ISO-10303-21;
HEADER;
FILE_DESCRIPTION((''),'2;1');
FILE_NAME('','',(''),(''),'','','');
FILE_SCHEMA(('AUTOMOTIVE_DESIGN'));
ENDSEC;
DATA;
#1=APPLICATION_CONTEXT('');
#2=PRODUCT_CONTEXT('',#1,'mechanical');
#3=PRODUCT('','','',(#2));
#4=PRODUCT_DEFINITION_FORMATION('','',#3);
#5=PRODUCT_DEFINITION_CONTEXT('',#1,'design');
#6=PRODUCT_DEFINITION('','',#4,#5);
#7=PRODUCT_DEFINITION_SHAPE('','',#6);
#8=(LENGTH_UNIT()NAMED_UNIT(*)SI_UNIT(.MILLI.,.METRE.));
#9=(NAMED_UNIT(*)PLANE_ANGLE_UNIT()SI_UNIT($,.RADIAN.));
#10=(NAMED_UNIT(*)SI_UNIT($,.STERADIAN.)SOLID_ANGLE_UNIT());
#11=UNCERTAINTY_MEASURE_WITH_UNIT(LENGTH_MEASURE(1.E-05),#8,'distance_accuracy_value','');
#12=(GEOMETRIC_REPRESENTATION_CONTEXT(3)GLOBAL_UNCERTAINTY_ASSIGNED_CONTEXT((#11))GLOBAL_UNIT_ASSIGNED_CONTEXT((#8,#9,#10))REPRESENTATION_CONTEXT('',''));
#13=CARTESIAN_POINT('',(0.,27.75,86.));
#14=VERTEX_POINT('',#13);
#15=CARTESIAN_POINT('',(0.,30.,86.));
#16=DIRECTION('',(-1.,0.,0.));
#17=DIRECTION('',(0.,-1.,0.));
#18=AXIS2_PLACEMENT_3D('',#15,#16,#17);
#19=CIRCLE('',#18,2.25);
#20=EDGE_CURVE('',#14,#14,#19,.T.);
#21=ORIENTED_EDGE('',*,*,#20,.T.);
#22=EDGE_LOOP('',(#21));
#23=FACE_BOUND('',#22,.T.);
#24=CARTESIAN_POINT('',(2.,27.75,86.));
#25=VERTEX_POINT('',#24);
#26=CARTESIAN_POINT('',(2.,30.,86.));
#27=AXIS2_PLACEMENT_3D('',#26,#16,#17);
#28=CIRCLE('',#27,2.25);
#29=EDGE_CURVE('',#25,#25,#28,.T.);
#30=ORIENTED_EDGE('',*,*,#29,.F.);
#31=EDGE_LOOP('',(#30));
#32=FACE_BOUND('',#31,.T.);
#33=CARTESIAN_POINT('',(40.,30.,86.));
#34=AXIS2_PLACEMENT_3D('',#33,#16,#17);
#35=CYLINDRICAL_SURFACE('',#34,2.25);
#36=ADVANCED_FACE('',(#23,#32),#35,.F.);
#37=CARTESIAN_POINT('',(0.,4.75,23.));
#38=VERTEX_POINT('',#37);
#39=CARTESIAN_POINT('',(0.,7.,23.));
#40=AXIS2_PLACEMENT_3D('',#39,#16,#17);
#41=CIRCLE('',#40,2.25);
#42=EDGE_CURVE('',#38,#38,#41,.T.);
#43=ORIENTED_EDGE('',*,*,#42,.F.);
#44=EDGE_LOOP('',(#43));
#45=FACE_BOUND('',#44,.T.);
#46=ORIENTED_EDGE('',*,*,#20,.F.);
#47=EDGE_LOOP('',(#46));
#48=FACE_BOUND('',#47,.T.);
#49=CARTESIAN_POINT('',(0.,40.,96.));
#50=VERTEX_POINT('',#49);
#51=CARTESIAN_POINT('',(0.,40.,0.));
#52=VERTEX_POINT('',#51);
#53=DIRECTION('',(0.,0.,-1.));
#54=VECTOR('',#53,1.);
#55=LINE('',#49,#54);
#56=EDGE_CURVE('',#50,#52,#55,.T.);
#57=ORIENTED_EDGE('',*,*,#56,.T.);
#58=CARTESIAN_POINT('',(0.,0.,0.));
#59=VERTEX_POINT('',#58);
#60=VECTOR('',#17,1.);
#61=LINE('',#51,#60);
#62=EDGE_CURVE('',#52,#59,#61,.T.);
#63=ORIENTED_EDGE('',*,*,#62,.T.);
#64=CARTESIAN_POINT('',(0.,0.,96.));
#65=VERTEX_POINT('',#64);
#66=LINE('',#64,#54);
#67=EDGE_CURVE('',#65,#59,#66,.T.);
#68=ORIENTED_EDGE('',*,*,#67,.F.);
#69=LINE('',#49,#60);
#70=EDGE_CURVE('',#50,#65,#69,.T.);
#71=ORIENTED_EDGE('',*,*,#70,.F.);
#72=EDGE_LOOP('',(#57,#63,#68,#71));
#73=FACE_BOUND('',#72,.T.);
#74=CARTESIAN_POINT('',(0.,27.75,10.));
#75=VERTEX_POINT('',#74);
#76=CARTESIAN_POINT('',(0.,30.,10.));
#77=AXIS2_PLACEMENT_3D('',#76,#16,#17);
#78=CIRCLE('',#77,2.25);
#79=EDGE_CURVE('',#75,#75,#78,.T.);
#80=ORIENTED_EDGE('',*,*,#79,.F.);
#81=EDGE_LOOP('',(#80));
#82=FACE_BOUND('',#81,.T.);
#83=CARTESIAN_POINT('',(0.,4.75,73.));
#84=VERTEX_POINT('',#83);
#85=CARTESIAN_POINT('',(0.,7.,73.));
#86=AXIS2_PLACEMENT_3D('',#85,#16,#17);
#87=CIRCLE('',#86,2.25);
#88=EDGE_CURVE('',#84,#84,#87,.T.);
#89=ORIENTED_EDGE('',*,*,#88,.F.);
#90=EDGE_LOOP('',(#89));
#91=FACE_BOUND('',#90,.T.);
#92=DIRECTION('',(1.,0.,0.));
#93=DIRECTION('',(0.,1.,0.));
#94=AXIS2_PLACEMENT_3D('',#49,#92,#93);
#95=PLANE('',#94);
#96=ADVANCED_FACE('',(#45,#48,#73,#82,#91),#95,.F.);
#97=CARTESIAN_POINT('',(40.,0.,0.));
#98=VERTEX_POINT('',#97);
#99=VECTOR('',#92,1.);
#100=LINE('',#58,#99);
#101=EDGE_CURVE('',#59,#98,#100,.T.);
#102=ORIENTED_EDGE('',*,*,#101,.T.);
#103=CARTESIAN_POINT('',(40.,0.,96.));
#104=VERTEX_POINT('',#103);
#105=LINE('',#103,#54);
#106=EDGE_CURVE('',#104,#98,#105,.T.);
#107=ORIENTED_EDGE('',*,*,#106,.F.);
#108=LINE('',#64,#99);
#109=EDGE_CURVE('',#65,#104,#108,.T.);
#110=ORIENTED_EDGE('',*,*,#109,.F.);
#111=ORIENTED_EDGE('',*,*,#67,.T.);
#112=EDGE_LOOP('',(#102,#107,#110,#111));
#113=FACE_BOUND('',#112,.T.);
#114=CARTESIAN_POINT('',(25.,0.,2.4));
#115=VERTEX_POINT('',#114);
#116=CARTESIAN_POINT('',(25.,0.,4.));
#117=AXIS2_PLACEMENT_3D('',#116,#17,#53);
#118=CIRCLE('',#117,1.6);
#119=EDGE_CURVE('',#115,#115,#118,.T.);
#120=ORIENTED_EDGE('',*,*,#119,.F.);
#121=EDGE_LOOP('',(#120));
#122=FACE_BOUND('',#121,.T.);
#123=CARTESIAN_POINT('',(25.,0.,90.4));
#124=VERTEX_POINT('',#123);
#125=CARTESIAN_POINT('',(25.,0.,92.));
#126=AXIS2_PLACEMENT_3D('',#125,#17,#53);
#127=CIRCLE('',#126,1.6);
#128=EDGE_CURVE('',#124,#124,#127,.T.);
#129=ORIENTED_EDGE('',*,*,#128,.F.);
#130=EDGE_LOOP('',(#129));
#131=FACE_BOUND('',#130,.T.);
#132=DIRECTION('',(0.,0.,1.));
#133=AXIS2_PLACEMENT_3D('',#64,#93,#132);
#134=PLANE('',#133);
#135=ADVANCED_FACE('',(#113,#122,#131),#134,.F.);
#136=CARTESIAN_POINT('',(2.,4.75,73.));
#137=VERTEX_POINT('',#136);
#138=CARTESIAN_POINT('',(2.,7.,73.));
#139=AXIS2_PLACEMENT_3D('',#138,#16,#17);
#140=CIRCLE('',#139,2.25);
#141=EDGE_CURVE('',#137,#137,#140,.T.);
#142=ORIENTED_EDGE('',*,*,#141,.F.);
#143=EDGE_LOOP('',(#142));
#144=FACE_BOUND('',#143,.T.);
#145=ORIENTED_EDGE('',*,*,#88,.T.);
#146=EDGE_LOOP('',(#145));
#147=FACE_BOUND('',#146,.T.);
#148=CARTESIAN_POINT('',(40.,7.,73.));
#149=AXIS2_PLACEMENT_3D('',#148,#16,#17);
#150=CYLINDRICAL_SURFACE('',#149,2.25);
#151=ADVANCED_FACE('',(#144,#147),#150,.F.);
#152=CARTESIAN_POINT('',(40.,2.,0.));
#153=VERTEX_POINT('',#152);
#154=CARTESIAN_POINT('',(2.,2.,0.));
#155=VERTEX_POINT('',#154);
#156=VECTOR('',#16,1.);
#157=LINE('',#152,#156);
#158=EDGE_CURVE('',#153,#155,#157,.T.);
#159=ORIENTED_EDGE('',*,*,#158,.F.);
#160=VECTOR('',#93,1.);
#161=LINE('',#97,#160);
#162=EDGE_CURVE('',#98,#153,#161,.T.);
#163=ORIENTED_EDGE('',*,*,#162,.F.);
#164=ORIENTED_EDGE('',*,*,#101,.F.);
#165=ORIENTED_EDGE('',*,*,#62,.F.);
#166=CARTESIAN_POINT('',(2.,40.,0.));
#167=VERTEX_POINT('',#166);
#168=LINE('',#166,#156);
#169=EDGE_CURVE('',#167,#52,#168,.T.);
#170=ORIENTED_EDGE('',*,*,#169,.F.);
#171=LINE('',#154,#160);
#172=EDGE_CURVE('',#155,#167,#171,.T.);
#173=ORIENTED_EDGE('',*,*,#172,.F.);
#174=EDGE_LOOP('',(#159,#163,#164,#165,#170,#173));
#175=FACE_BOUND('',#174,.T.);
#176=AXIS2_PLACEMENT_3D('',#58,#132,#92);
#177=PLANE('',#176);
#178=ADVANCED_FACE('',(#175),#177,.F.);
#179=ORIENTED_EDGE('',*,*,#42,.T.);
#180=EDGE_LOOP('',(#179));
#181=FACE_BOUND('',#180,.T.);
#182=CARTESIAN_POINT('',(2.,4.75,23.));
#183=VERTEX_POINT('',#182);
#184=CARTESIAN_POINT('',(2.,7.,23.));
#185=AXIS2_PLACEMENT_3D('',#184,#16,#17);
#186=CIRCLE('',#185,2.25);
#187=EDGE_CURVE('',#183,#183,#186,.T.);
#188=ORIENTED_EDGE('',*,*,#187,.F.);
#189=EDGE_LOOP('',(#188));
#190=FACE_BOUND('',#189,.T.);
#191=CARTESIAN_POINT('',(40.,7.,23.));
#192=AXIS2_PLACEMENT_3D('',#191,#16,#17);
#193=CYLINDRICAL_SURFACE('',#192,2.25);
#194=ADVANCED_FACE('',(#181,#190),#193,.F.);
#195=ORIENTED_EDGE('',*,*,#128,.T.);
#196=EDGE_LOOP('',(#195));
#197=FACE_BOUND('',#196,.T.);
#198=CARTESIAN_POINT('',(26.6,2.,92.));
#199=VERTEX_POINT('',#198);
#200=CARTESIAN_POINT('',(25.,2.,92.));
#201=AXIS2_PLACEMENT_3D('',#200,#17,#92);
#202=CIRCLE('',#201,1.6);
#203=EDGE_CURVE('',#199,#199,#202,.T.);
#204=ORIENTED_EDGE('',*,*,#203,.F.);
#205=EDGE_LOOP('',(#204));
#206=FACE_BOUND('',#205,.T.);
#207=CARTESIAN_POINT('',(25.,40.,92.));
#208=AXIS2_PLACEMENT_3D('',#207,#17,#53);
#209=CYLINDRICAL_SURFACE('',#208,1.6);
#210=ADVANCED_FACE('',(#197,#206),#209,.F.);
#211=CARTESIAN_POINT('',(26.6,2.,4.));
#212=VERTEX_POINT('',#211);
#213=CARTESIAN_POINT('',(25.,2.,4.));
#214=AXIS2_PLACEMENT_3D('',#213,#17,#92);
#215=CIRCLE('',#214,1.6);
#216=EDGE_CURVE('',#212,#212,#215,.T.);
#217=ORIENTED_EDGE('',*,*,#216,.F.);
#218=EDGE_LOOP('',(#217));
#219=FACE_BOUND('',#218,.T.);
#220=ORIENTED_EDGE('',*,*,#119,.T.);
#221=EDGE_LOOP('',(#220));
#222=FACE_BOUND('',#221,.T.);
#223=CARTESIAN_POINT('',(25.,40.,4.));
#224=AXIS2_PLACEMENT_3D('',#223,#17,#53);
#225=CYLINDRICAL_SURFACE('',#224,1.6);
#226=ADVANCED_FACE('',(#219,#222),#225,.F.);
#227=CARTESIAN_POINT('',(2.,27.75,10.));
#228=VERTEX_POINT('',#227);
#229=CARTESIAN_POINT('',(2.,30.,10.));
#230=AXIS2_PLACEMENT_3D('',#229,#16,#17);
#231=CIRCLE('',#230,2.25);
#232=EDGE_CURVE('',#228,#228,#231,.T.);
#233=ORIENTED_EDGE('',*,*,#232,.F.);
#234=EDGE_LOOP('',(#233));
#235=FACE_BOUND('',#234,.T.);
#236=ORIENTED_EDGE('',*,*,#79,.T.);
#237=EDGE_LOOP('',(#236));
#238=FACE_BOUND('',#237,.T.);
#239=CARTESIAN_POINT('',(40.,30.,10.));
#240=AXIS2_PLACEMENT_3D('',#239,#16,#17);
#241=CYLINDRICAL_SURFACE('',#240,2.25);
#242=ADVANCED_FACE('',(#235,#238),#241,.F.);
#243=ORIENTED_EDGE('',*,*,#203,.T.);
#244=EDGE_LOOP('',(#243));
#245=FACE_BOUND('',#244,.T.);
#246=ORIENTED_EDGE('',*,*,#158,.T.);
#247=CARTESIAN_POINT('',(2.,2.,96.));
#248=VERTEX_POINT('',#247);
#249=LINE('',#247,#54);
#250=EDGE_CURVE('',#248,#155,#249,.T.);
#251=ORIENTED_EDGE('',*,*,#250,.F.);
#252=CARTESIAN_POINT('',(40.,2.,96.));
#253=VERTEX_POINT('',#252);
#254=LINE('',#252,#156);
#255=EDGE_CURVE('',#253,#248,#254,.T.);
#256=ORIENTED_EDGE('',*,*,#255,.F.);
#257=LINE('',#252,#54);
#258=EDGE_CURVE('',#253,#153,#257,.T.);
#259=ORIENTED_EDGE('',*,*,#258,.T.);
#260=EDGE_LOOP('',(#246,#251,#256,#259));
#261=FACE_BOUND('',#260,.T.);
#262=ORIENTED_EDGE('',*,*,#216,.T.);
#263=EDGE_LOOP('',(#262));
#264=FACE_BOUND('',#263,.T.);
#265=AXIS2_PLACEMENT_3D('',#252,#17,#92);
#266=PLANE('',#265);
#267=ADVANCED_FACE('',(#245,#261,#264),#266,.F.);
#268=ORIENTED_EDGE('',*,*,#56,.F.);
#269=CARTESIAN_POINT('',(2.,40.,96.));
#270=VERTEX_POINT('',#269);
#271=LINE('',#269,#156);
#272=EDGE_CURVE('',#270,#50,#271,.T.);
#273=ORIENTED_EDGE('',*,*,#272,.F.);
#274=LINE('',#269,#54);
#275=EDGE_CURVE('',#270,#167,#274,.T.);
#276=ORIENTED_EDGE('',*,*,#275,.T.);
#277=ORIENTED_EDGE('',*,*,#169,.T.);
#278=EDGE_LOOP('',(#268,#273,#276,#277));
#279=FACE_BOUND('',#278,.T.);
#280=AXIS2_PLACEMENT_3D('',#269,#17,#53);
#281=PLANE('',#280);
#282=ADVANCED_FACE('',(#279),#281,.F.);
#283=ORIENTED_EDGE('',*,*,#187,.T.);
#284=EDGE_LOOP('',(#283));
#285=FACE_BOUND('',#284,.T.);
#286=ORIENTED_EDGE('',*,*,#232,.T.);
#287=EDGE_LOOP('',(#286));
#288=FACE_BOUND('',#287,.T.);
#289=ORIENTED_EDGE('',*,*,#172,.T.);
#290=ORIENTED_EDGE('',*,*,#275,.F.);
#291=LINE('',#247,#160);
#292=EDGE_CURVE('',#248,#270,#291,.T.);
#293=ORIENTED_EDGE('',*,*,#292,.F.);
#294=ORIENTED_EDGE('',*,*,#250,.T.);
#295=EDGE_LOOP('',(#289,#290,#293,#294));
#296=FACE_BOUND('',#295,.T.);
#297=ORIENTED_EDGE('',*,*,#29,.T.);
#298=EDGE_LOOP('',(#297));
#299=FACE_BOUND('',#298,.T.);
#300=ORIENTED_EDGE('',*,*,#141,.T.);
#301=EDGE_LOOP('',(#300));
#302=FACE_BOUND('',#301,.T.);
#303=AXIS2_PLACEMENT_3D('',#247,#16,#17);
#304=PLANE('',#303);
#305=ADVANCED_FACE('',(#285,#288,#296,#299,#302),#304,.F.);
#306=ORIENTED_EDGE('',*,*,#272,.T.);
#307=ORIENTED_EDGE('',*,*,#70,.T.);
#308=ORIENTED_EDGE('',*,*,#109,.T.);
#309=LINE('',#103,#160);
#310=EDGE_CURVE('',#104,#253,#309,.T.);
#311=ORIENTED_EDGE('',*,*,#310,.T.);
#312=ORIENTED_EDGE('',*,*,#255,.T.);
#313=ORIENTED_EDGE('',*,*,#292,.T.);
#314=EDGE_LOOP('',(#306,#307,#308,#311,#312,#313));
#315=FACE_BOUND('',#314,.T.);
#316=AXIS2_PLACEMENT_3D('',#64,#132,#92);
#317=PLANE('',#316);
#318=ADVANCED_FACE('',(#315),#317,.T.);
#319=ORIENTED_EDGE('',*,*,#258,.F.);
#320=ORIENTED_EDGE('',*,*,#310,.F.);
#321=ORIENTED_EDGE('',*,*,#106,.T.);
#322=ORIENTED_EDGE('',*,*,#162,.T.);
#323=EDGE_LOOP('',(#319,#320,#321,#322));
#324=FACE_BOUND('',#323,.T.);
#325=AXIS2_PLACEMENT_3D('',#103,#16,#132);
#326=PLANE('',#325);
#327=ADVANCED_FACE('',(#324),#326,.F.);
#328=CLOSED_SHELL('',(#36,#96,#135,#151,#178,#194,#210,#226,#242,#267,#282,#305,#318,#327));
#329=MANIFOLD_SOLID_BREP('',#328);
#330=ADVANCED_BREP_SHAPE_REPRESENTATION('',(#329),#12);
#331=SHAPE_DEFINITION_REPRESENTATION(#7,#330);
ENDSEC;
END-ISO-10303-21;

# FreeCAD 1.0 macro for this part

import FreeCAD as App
import Part
import Sketcher

doc = App.newDocument("Part")
body = doc.addObject("PartDesign::Body", "Body")

sketch1 = doc.addObject("Sketcher::SketchObject", "Sketch")
body.addObject(sketch1)
sketch1.AttachmentSupport = (doc.XY_Plane, [""])
sketch1.MapMode = "FlatFace"
sketch1.addGeometry(Part.LineSegment(App.Vector(0, 0, 0), App.Vector(40, 0, 0)), False)
sketch1.addGeometry(Part.LineSegment(App.Vector(40, 0, 0), App.Vector(40, 2, 0)), False)
sketch1.addGeometry(Part.LineSegment(App.Vector(40, 2, 0), App.Vector(2, 2, 0)), False)
sketch1.addGeometry(Part.LineSegment(App.Vector(2, 2, 0), App.Vector(2, 40, 0)), False)
sketch1.addGeometry(Part.LineSegment(App.Vector(2, 40, 0), App.Vector(0, 40, 0)), False)
sketch1.addGeometry(Part.LineSegment(App.Vector(0, 40, 0), App.Vector(0, 0, 0)), False)
sketch1.addConstraint(Sketcher.Constraint("Coincident", 0, 2, 1, 1))
sketch1.addConstraint(Sketcher.Constraint("Coincident", 1, 2, 2, 1))
sketch1.addConstraint(Sketcher.Constraint("Coincident", 2, 2, 3, 1))
sketch1.addConstraint(Sketcher.Constraint("Coincident", 3, 2, 4, 1))
sketch1.addConstraint(Sketcher.Constraint("Coincident", 4, 2, 5, 1))
sketch1.addConstraint(Sketcher.Constraint("Coincident", 5, 2, 0, 1))
sketch1.addConstraint(Sketcher.Constraint("Horizontal", 0))
sketch1.addConstraint(Sketcher.Constraint("Vertical", 1))
sketch1.addConstraint(Sketcher.Constraint("Horizontal", 2))
sketch1.addConstraint(Sketcher.Constraint("Vertical", 3))
sketch1.addConstraint(Sketcher.Constraint("Horizontal", 4))
sketch1.addConstraint(Sketcher.Constraint("Vertical", 5))
sketch1.addConstraint(Sketcher.Constraint("Coincident", 5, 2, -1, 1))
sketch1.addConstraint(Sketcher.Constraint("Equal", 4, 1))
sketch1.addConstraint(Sketcher.Constraint("Equal", 2, 3))
sketch1.addConstraint(Sketcher.Constraint("DistanceX", 0, 1, 0, 2, 40.0))
sketch1.addConstraint(Sketcher.Constraint("DistanceX", 2, 2, 2, 1, 38.0))
pad1 = doc.addObject("PartDesign::Pad", "Pad")
body.addObject(pad1)
pad1.Profile = sketch1
pad1.Length = 96

sketch2 = doc.addObject("Sketcher::SketchObject", "Sketch001")
body.addObject(sketch2)
sketch2.AttachmentSupport = (doc.XZ_Plane, [""])
sketch2.MapMode = "FlatFace"
sketch2.addGeometry(Part.Circle(App.Vector(25, 92, 0), App.Vector(0, 0, 1), 1.6), False)
sketch2.addGeometry(Part.Circle(App.Vector(25, 4, 0), App.Vector(0, 0, 1), 1.6), False)
sketch2.addConstraint(Sketcher.Constraint("Equal", 0, 1))
sketch2.addConstraint(Sketcher.Constraint("Vertical", 0, 3, 1, 3))
sketch2.addConstraint(Sketcher.Constraint("Diameter", 0, 3.2))
sketch2.addConstraint(Sketcher.Constraint("DistanceX", -1, 1, 0, 3, 25.0))
sketch2.addConstraint(Sketcher.Constraint("DistanceY", -1, 1, 0, 3, 92.0))
sketch2.addConstraint(Sketcher.Constraint("DistanceY", -1, 1, 1, 3, 4.0))
pocket1 = doc.addObject("PartDesign::Pocket", "Pocket")
body.addObject(pocket1)
pocket1.Profile = sketch2
pocket1.Type = "ThroughAll"

sketch3 = doc.addObject("Sketcher::SketchObject", "Sketch002")
body.addObject(sketch3)
sketch3.AttachmentSupport = (doc.YZ_Plane, [""])
sketch3.MapMode = "FlatFace"
sketch3.addGeometry(Part.Circle(App.Vector(30, 10, 0), App.Vector(0, 0, 1), 2.2), False)
sketch3.addGeometry(Part.Circle(App.Vector(30, 86, 0), App.Vector(0, 0, 1), 2.2), False)
sketch3.addGeometry(Part.Circle(App.Vector(7, 73, 0), App.Vector(0, 0, 1), 2.2), False)
sketch3.addGeometry(Part.Circle(App.Vector(7, 23, 0), App.Vector(0, 0, 1), 2.2), False)
sketch3.addConstraint(Sketcher.Constraint("Equal", 0, 1))
sketch3.addConstraint(Sketcher.Constraint("Equal", 1, 2))
sketch3.addConstraint(Sketcher.Constraint("Equal", 2, 3))
sketch3.addConstraint(Sketcher.Constraint("Vertical", 0, 3, 1, 3))
sketch3.addConstraint(Sketcher.Constraint("Vertical", 2, 3, 3, 3))
sketch3.addConstraint(Sketcher.Constraint("Diameter", 0, 4.5))
sketch3.addConstraint(Sketcher.Constraint("DistanceX", -1, 1, 0, 3, 30.0))
sketch3.addConstraint(Sketcher.Constraint("DistanceY", -1, 1, 0, 3, 10.0))
sketch3.addConstraint(Sketcher.Constraint("DistanceY", -1, 1, 1, 3, 86.0))
sketch3.addConstraint(Sketcher.Constraint("DistanceX", -1, 1, 2, 3, 7.0))
sketch3.addConstraint(Sketcher.Constraint("DistanceY", -1, 1, 2, 3, 73.0))
sketch3.addConstraint(Sketcher.Constraint("DistanceY", -1, 1, 3, 3, 23.0))
pocket2 = doc.addObject("PartDesign::Pocket", "Pocket001")
body.addObject(pocket2)
pocket2.Profile = sketch3
pocket2.Type = "ThroughAll"
pocket2.Reversed = True

doc.recompute()
